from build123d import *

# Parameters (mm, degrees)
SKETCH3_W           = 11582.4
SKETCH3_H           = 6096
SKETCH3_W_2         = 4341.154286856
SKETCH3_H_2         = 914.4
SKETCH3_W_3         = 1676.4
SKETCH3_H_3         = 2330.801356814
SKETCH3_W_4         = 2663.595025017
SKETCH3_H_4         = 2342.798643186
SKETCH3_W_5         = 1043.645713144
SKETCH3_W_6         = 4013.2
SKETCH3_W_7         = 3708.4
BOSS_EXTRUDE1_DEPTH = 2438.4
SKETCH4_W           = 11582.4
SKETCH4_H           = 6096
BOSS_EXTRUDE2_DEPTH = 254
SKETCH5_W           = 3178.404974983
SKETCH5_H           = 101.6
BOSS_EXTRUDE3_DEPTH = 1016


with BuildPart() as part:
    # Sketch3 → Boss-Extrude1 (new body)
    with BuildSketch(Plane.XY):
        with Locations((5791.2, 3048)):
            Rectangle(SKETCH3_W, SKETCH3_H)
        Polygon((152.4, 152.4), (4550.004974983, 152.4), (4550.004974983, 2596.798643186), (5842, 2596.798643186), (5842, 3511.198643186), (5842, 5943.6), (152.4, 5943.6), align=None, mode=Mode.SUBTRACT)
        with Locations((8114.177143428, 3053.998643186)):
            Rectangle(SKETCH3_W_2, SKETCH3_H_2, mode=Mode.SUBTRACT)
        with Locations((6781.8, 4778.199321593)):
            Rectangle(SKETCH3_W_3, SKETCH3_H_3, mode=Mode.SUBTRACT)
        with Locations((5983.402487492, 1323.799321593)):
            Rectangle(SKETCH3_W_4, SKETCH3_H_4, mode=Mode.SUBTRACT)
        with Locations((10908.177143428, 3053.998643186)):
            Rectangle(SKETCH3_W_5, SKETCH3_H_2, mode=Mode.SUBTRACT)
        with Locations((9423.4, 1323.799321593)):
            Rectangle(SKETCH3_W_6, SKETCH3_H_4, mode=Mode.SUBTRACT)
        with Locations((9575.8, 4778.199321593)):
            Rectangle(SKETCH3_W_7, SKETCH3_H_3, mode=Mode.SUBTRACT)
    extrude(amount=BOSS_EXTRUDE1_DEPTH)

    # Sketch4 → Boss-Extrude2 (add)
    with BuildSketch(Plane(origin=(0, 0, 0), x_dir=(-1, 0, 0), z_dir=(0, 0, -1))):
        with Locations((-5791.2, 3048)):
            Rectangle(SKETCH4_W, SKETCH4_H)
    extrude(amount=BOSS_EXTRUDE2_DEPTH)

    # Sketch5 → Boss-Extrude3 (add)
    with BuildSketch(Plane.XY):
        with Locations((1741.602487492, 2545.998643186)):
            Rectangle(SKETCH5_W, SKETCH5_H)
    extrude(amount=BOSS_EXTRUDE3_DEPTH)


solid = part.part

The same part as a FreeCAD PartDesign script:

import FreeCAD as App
import Part
import Sketcher

V = App.Vector
Q = App.Units.Quantity

doc = App.newDocument("Part")
body = doc.addObject("PartDesign::Body", "Body")

# Sketch on XY plane
sketch1 = doc.addObject("Sketcher::SketchObject", "Sketch")
body.addObject(sketch1)
sketch1.AttachmentSupport = (doc.XY_Plane, [""])
sketch1.MapMode = "FlatFace"
sketch1.addGeometry([
    Part.LineSegment(V(0, 6096, 0), V(0, 0, 0)),  # 0
    Part.LineSegment(V(0, 0, 0), V(11582.4, 0, 0)),  # 1
    Part.LineSegment(V(11582.4, 0, 0), V(11582.4, 6096, 0)),  # 2
    Part.LineSegment(V(11582.4, 6096, 0), V(0, 6096, 0)),  # 3
    Part.LineSegment(V(7315.2, 152.4, 0), V(4651.604975, 152.4, 0)),  # 4
    Part.LineSegment(V(4651.604975, 152.4, 0), V(4651.604975, 2495.198643, 0)),  # 5
    Part.LineSegment(V(4651.604975, 2495.198643, 0), V(7315.2, 2495.198643, 0)),  # 6
    Part.LineSegment(V(7315.2, 2495.198643, 0), V(7315.2, 152.4, 0)),  # 7
    Part.LineSegment(V(11430, 152.4, 0), V(7416.8, 152.4, 0)),  # 8
    Part.LineSegment(V(7416.8, 152.4, 0), V(7416.8, 2495.198643, 0)),  # 9
    Part.LineSegment(V(7416.8, 2495.198643, 0), V(11430, 2495.198643, 0)),  # 10
    Part.LineSegment(V(11430, 2495.198643, 0), V(11430, 152.4, 0)),  # 11
    Part.LineSegment(V(4550.004975, 152.4, 0), V(152.4, 152.4, 0)),  # 12
    Part.LineSegment(V(152.4, 152.4, 0), V(152.4, 5943.6, 0)),  # 13
    Part.LineSegment(V(152.4, 5943.6, 0), V(5842, 5943.6, 0)),  # 14
    Part.LineSegment(V(5842, 5943.6, 0), V(5842, 2596.798643, 0)),  # 15
    Part.LineSegment(V(5842, 2596.798643, 0), V(4550.004975, 2596.798643, 0)),  # 16
    Part.LineSegment(V(4550.004975, 2596.798643, 0), V(4550.004975, 152.4, 0)),  # 17
    Part.LineSegment(V(10284.754287, 2596.798643, 0), V(5943.6, 2596.798643, 0)),  # 18
    Part.LineSegment(V(5943.6, 2596.798643, 0), V(5943.6, 3511.198643, 0)),  # 19
    Part.LineSegment(V(5943.6, 3511.198643, 0), V(10284.754287, 3511.198643, 0)),  # 20
    Part.LineSegment(V(10284.754287, 3511.198643, 0), V(10284.754287, 2596.798643, 0)),  # 21
    Part.LineSegment(V(11430, 2596.798643, 0), V(10386.354287, 2596.798643, 0)),  # 22
    Part.LineSegment(V(10386.354287, 2596.798643, 0), V(10386.354287, 3511.198643, 0)),  # 23
    Part.LineSegment(V(10386.354287, 3511.198643, 0), V(11430, 3511.198643, 0)),  # 24
    Part.LineSegment(V(11430, 3511.198643, 0), V(11430, 2596.798643, 0)),  # 25
    Part.LineSegment(V(7620, 3612.798643, 0), V(5943.6, 3612.798643, 0)),  # 26
    Part.LineSegment(V(5943.6, 3612.798643, 0), V(5943.6, 5943.6, 0)),  # 27
    Part.LineSegment(V(5943.6, 5943.6, 0), V(7620, 5943.6, 0)),  # 28
    Part.LineSegment(V(7620, 5943.6, 0), V(7620, 3612.798643, 0)),  # 29
    Part.LineSegment(V(11430, 3612.798643, 0), V(7721.6, 3612.798643, 0)),  # 30
    Part.LineSegment(V(7721.6, 3612.798643, 0), V(7721.6, 5943.6, 0)),  # 31
    Part.LineSegment(V(7721.6, 5943.6, 0), V(11430, 5943.6, 0)),  # 32
    Part.LineSegment(V(11430, 5943.6, 0), V(11430, 3612.798643, 0)),  # 33
], False)
sketch1.addConstraint([
    Sketcher.Constraint("Coincident", 0, 2, 1, 1),
    Sketcher.Constraint("Coincident", 1, 2, 2, 1),
    Sketcher.Constraint("Coincident", 2, 2, 3, 1),
    Sketcher.Constraint("Coincident", 3, 2, 0, 1),
    Sketcher.Constraint("Coincident", 4, 2, 5, 1),
    Sketcher.Constraint("Coincident", 5, 2, 6, 1),
    Sketcher.Constraint("Coincident", 6, 2, 7, 1),
    Sketcher.Constraint("Coincident", 7, 2, 4, 1),
    Sketcher.Constraint("Coincident", 8, 2, 9, 1),
    Sketcher.Constraint("Coincident", 9, 2, 10, 1),
    Sketcher.Constraint("Coincident", 10, 2, 11, 1),
    Sketcher.Constraint("Coincident", 11, 2, 8, 1),
    Sketcher.Constraint("Coincident", 12, 2, 13, 1),
    Sketcher.Constraint("Coincident", 13, 2, 14, 1),
    Sketcher.Constraint("Coincident", 14, 2, 15, 1),
    Sketcher.Constraint("Coincident", 15, 2, 16, 1),
    Sketcher.Constraint("Coincident", 16, 2, 17, 1),
    Sketcher.Constraint("Coincident", 17, 2, 12, 1),
    Sketcher.Constraint("Coincident", 18, 2, 19, 1),
    Sketcher.Constraint("Coincident", 19, 2, 20, 1),
    Sketcher.Constraint("Coincident", 20, 2, 21, 1),
    Sketcher.Constraint("Coincident", 21, 2, 18, 1),
    Sketcher.Constraint("Coincident", 22, 2, 23, 1),
    Sketcher.Constraint("Coincident", 23, 2, 24, 1),
    Sketcher.Constraint("Coincident", 24, 2, 25, 1),
    Sketcher.Constraint("Coincident", 25, 2, 22, 1),
    Sketcher.Constraint("Coincident", 26, 2, 27, 1),
    Sketcher.Constraint("Coincident", 27, 2, 28, 1),
    Sketcher.Constraint("Coincident", 28, 2, 29, 1),
    Sketcher.Constraint("Coincident", 29, 2, 26, 1),
    Sketcher.Constraint("Coincident", 30, 2, 31, 1),
    Sketcher.Constraint("Coincident", 31, 2, 32, 1),
    Sketcher.Constraint("Coincident", 32, 2, 33, 1),
    Sketcher.Constraint("Coincident", 33, 2, 30, 1),
    Sketcher.Constraint("Vertical", 0),
    Sketcher.Constraint("Horizontal", 1),
    Sketcher.Constraint("Vertical", 2),
    Sketcher.Constraint("Horizontal", 3),
    Sketcher.Constraint("Horizontal", 4),
    Sketcher.Constraint("Vertical", 5),
    Sketcher.Constraint("Horizontal", 6),
    Sketcher.Constraint("Vertical", 7),
    Sketcher.Constraint("Horizontal", 8),
    Sketcher.Constraint("Vertical", 9),
    Sketcher.Constraint("Horizontal", 10),
    Sketcher.Constraint("Vertical", 11),
    Sketcher.Constraint("Horizontal", 12),
    Sketcher.Constraint("Vertical", 13),
    Sketcher.Constraint("Horizontal", 14),
    Sketcher.Constraint("Vertical", 15),
    Sketcher.Constraint("Horizontal", 16),
    Sketcher.Constraint("Vertical", 17),
    Sketcher.Constraint("Horizontal", 18),
    Sketcher.Constraint("Vertical", 19),
    Sketcher.Constraint("Horizontal", 20),
    Sketcher.Constraint("Vertical", 21),
    Sketcher.Constraint("Horizontal", 22),
    Sketcher.Constraint("Vertical", 23),
    Sketcher.Constraint("Horizontal", 24),
    Sketcher.Constraint("Vertical", 25),
    Sketcher.Constraint("Horizontal", 26),
    Sketcher.Constraint("Vertical", 27),
    Sketcher.Constraint("Horizontal", 28),
    Sketcher.Constraint("Vertical", 29),
    Sketcher.Constraint("Horizontal", 30),
    Sketcher.Constraint("Vertical", 31),
    Sketcher.Constraint("Horizontal", 32),
    Sketcher.Constraint("Vertical", 33),
    Sketcher.Constraint("Coincident", 0, 2, -1, 1),
    Sketcher.Constraint("Horizontal", 7, 2, 8, 2),
    Sketcher.Constraint("Horizontal", 6, 2, 9, 2),
    Sketcher.Constraint("Horizontal", 11, 2, 12, 2),
    Sketcher.Constraint("Horizontal", 16, 2, 18, 2),
    Sketcher.Constraint("Horizontal", 21, 2, 22, 2),
    Sketcher.Constraint("Horizontal", 20, 2, 23, 2),
    Sketcher.Constraint("Horizontal", 14, 2, 27, 2),
    Sketcher.Constraint("Horizontal", 29, 2, 30, 2),
    Sketcher.Constraint("Horizontal", 28, 2, 31, 2),
    Sketcher.Constraint("Vertical", 11, 2, 24, 2),
    Sketcher.Constraint("Vertical", 19, 2, 26, 2),
    Sketcher.Constraint("Vertical", 25, 2, 32, 2),
    Sketcher.Constraint("DistanceX", 1, 1, 1, 2, Q("456 in")),
    Sketcher.Constraint("DistanceX", 8, 2, 8, 1, Q("158 in")),
    Sketcher.Constraint("DistanceX", 14, 1, 14, 2, Q("224 in")),
    Sketcher.Constraint("DistanceX", 26, 2, 26, 1, Q("66 in")),
    Sketcher.Constraint("DistanceX", 30, 2, 30, 1, Q("146 in")),
    Sketcher.Constraint("DistanceY", 0, 2, 0, 1, Q("240 in")),
    Sketcher.Constraint("DistanceY", 13, 1, 13, 2, Q("228 in")),
    Sketcher.Constraint("DistanceY", 19, 1, 19, 2, Q("36 in")),
    Sketcher.Constraint("DistanceY", -1, 1, 4, 2, Q("6 in")),
    Sketcher.Constraint("DistanceX", -1, 1, 6, 2, Q("288 in")),
    Sketcher.Constraint("DistanceX", -1, 1, 8, 2, Q("292 in")),
    Sketcher.Constraint("DistanceX", -1, 1, 12, 2, Q("6 in")),
    Sketcher.Constraint("DistanceX", -1, 1, 18, 2, Q("234 in")),
    Sketcher.Constraint("DistanceY", 5, 2, 15, 2, Q("4 in")),
    Sketcher.Constraint("DistanceX", 16, 2, 5, 2, Q("4 in")),
    Sketcher.Constraint("DistanceX", 21, 2, 22, 2, Q("4 in")),
    Sketcher.Constraint("DistanceY", 19, 2, 26, 2, Q("4 in")),
    Sketcher.Constraint("DistanceX", 4, 2, 4, 1, Q("2663.595025 mm")),
    Sketcher.Constraint("DistanceX", 18, 2, 18, 1, Q("4341.154287 mm")),
    Sketcher.Constraint("DistanceY", 5, 1, 5, 2, Q("2342.798643 mm")),
])
pad1 = doc.addObject("PartDesign::Pad", "Pad")
body.addObject(pad1)
pad1.Profile = sketch1
pad1.Length = Q("96 in")

# Sketch on XY plane
sketch2 = doc.addObject("Sketcher::SketchObject", "Sketch001")
body.addObject(sketch2)
sketch2.AttachmentSupport = (doc.XY_Plane, [""])
sketch2.MapMode = "FlatFace"
sketch2.addGeometry([
    Part.LineSegment(V(11582.4, 6096, 0), V(11582.4, 0, 0)),
    Part.LineSegment(V(11582.4, 0, 0), V(0, 0, 0)),
    Part.LineSegment(V(0, 0, 0), V(0, 6096, 0)),
    Part.LineSegment(V(0, 6096, 0), V(11582.4, 6096, 0)),
], False)
sketch2.addConstraint([
    Sketcher.Constraint("Coincident", 0, 2, 1, 1),
    Sketcher.Constraint("Coincident", 1, 2, 2, 1),
    Sketcher.Constraint("Coincident", 2, 2, 3, 1),
    Sketcher.Constraint("Coincident", 3, 2, 0, 1),
    Sketcher.Constraint("Vertical", 0),
    Sketcher.Constraint("Horizontal", 1),
    Sketcher.Constraint("Vertical", 2),
    Sketcher.Constraint("Horizontal", 3),
    Sketcher.Constraint("Coincident", 1, 2, -1, 1),
    Sketcher.Constraint("DistanceX", 1, 2, 1, 1, Q("456 in")),
    Sketcher.Constraint("DistanceY", 0, 2, 0, 1, Q("240 in")),
])
pad2 = doc.addObject("PartDesign::Pad", "Pad001")
body.addObject(pad2)
pad2.Profile = sketch2
pad2.Length = Q("10 in")
pad2.Reversed = True

# Sketch on XY plane
sketch3 = doc.addObject("Sketcher::SketchObject", "Sketch002")
body.addObject(sketch3)
sketch3.AttachmentSupport = (doc.XY_Plane, [""])
sketch3.MapMode = "FlatFace"
sketch3.addGeometry([
    Part.LineSegment(V(152.4, 2596.798643, 0), V(152.4, 2495.198643, 0)),
    Part.LineSegment(V(152.4, 2495.198643, 0), V(3330.804975, 2495.198643, 0)),
    Part.LineSegment(V(3330.804975, 2495.198643, 0), V(3330.804975, 2596.798643, 0)),
    Part.LineSegment(V(3330.804975, 2596.798643, 0), V(152.4, 2596.798643, 0)),
], False)
sketch3.addConstraint([
    Sketcher.Constraint("Coincident", 0, 2, 1, 1),
    Sketcher.Constraint("Coincident", 1, 2, 2, 1),
    Sketcher.Constraint("Coincident", 2, 2, 3, 1),
    Sketcher.Constraint("Coincident", 3, 2, 0, 1),
    Sketcher.Constraint("Vertical", 0),
    Sketcher.Constraint("Horizontal", 1),
    Sketcher.Constraint("Vertical", 2),
    Sketcher.Constraint("Horizontal", 3),
    Sketcher.Constraint("DistanceY", 0, 2, 0, 1, Q("4 in")),
    Sketcher.Constraint("DistanceX", -1, 1, 0, 2, Q("6 in")),
    Sketcher.Constraint("DistanceX", 1, 1, 1, 2, Q("3178.404975 mm")),
    Sketcher.Constraint("DistanceY", -1, 1, 0, 2, Q("2495.198643 mm")),
])
pad3 = doc.addObject("PartDesign::Pad", "Pad002")
body.addObject(pad3)
pad3.Profile = sketch3
pad3.Length = Q("40 in")

doc.recompute()
